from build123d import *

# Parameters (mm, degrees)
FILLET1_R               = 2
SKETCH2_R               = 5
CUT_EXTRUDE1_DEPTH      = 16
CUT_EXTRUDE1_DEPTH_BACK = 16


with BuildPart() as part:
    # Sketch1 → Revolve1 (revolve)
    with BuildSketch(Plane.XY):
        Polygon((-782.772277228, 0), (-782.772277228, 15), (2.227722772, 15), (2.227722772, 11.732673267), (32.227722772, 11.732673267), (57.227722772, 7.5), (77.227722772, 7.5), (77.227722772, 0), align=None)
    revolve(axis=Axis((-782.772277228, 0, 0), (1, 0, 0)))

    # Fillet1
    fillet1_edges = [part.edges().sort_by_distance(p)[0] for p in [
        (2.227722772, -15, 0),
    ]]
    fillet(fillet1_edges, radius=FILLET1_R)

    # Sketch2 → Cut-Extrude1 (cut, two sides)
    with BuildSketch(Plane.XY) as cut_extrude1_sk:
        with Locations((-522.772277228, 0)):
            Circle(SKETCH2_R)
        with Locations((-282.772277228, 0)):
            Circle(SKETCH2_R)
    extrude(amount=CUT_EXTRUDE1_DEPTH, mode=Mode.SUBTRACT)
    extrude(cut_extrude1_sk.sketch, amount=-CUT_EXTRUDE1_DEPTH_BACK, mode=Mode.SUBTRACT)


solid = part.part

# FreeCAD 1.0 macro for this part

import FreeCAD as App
import Part
import Sketcher

V = App.Vector


def edges_at(feature, points):
    """Names of the edges that pass closest to the given points."""
    edges = feature.Shape.Edges
    near = lambda p: min(range(len(edges)), key=lambda i: edges[i].distToShape(Part.Vertex(*p))[0])
    return sorted({f"Edge{near(p) + 1}" for p in points})


def add_polygon(sketch, points):
    """Adds a closed chain of lines whose ends are joined by coincident constraints."""
    first, n = sketch.GeometryCount, len(points)
    for a, b in zip(points, points[1:] + points[:1]):
        sketch.addGeometry(Part.LineSegment(App.Vector(*a, 0), App.Vector(*b, 0)), False)
    for i in range(n):
        sketch.addConstraint(Sketcher.Constraint("Coincident", first + i, 2, first + (i + 1) % n, 1))

doc = App.newDocument("Part")
body = doc.addObject("PartDesign::Body", "Body")

# Sketch on XY plane
sketch1 = body.newObject("Sketcher::SketchObject", "Sketch")
sketch1.AttachmentSupport = (doc.getObject("XY_Plane"), [""])
sketch1.MapMode = "FlatFace"
add_polygon(sketch1, [(-782.8, 15), (-782.8, 0), (77.2, 0), (77.2, 7.5), (57.2, 7.5), (32.2, 11.7), (2.2, 11.7), (2.2, 15)])  # lines 0-7
sketch1.addConstraint([
    Sketcher.Constraint("Vertical", 0),
    Sketcher.Constraint("Horizontal", 1),
    Sketcher.Constraint("Vertical", 2),
    Sketcher.Constraint("Horizontal", 3),
    Sketcher.Constraint("Horizontal", 5),
    Sketcher.Constraint("Vertical", 6),
    Sketcher.Constraint("Horizontal", 7),
    Sketcher.Constraint("PointOnObject", 0, 2, -1),
    Sketcher.Constraint("DistanceX", 1, 1, 1, 2, 860.0),
    Sketcher.Constraint("DistanceX", 3, 2, 3, 1, 20.0),
    Sketcher.Constraint("DistanceX", 5, 2, 5, 1, 30.0),
    Sketcher.Constraint("DistanceX", 7, 2, 7, 1, 785.0),
    Sketcher.Constraint("DistanceY", 0, 2, 0, 1, 15.0),
    Sketcher.Constraint("DistanceY", 2, 1, 2, 2, 7.5),
    Sketcher.Constraint("Distance", 4, 25.355779),
    Sketcher.Constraint("DistanceX", 0, 2, -1, 1, 782.772277),
])
revolution = body.newObject("PartDesign::Revolution", "Revolution")
revolution.Profile = sketch1
revolution.ReferenceAxis = (sketch1, ["H_Axis"])
revolution.Angle = 360
doc.recompute()

fillet = body.newObject("PartDesign::Fillet", "Fillet")
fillet.Base = (revolution, edges_at(revolution, [(2.228, -15, 0)]))
fillet.Radius = 2

# Sketch on XY plane
sketch2 = body.newObject("Sketcher::SketchObject", "Sketch001")
sketch2.AttachmentSupport = (doc.getObject("XY_Plane"), [""])
sketch2.MapMode = "FlatFace"
sketch2.addGeometry([
    Part.Circle(V(-523, 0, 0), V(0, 0, 1), 5),
    Part.Circle(V(-283, 0, 0), V(0, 0, 1), 5),
], False)
sketch2.addConstraint([
    Sketcher.Constraint("Equal", 0, 1),
    Sketcher.Constraint("PointOnObject", 0, 3, -1),
    Sketcher.Constraint("PointOnObject", 1, 3, -1),
    Sketcher.Constraint("Diameter", 0, 10.0),
    Sketcher.Constraint("DistanceX", 0, 3, 1, 3, 240.0),
    Sketcher.Constraint("DistanceX", 0, 3, -1, 1, 522.772277),
])
pocket1 = body.newObject("PartDesign::Pocket", "Pocket")
pocket1.Profile = sketch2
pocket1.Type = "ThroughAll"
pocket1.Midplane = True

doc.recompute()
